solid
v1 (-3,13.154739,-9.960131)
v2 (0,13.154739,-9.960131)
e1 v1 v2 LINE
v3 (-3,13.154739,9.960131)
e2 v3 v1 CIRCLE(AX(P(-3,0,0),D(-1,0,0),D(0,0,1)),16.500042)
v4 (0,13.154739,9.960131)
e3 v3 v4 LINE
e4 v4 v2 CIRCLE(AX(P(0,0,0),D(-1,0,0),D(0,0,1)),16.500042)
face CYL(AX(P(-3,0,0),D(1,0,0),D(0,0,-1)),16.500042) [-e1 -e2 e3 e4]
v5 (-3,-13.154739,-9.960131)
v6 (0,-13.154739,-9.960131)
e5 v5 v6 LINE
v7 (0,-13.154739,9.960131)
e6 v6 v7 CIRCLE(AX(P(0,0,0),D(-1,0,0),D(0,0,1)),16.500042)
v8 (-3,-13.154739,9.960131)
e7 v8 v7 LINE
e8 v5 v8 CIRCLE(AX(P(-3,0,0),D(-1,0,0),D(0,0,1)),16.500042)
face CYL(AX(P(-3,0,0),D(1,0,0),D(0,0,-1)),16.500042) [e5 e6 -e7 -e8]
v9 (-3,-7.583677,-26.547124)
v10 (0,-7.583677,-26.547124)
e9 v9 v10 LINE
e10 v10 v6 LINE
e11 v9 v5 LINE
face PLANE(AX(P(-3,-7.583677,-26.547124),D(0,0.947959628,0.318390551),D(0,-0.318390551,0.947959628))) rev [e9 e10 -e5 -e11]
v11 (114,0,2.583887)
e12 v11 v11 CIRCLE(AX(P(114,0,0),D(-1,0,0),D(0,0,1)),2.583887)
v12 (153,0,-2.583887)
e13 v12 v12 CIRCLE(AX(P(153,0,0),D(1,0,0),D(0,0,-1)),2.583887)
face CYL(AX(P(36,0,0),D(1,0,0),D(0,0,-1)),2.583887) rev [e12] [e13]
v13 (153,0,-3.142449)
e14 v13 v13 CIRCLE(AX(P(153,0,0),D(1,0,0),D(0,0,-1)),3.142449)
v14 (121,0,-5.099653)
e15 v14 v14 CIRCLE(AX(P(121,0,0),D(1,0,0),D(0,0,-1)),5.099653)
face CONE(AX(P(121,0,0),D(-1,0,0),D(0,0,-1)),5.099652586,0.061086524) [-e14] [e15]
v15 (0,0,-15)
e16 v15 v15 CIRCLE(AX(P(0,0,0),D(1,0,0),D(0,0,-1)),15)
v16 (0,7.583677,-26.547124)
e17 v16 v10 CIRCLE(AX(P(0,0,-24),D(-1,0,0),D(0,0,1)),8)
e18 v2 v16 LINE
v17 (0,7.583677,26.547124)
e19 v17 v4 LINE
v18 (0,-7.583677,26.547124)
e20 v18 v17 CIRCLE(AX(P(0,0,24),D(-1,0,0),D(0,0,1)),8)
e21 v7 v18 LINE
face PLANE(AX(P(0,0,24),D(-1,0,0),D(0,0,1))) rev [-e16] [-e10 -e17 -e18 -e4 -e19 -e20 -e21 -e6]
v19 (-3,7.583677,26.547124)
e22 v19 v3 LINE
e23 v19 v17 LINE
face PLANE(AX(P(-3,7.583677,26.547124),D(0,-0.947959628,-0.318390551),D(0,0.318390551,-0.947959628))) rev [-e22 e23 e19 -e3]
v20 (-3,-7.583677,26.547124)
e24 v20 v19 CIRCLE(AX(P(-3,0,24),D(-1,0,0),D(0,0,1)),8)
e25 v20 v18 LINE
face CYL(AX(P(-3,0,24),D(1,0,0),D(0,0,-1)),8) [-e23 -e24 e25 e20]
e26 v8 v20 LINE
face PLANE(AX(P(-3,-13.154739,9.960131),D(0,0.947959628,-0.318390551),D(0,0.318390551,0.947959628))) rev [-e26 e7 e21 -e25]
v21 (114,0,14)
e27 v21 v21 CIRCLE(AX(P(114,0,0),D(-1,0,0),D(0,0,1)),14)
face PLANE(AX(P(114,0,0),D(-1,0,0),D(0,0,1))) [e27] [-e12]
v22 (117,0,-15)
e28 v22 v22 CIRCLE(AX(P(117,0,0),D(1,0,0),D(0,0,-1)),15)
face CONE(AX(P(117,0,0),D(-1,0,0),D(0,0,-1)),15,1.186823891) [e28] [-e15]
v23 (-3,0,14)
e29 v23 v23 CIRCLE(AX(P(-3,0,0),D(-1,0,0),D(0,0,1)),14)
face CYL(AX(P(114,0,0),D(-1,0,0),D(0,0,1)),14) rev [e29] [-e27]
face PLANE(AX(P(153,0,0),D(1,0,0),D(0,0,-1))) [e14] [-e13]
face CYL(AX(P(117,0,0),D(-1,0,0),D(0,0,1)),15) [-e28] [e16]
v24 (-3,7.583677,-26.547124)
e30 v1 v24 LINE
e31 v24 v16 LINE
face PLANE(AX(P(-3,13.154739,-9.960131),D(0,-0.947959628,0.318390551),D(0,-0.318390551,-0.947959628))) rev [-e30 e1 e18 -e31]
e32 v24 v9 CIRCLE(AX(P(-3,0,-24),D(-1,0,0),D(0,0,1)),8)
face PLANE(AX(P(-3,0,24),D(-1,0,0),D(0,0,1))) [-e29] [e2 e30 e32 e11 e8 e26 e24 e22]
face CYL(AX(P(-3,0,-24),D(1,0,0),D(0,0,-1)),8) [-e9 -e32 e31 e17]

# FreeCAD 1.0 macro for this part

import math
import FreeCAD as App
import Part
import Sketcher
from FreeCAD import Vector

doc = App.newDocument("Part")
body = doc.addObject("PartDesign::Body", "Body")

# Sketch on YZ plane
sketch1 = body.newObject("Sketcher::SketchObject", "Sketch")
sketch1.AttachmentSupport = (doc.getObject("YZ_Plane"), [""])
sketch1.MapMode = "FlatFace"
sketch1.addGeometry(Part.Circle(Vector(0, 0, 0), Vector(0, 0, 1), 15), False)
sketch1.addConstraint([
    Sketcher.Constraint("Coincident", 0, 3, -1, 1),
    Sketcher.Constraint("Diameter", 0, 30.0),
])
pad1 = body.newObject("PartDesign::Pad", "Pad")
pad1.Profile = sketch1
pad1.Length = 117

# Sketch on YZ plane
sketch2 = body.newObject("Sketcher::SketchObject", "Sketch001")
sketch2.AttachmentSupport = (doc.getObject("YZ_Plane"), [""])
sketch2.MapMode = "FlatFace"
sketch2.AttachmentOffset = App.Placement(Vector(0, 0, 117), App.Rotation())
sketch2.addGeometry(Part.Circle(Vector(0, 0, 0), Vector(0, 0, 1), 15), False)
sketch2.addConstraint([
    Sketcher.Constraint("Coincident", 0, 3, -1, 1),
    Sketcher.Constraint("Diameter", 0, 30.0),
])
pad2 = body.newObject("PartDesign::Pad", "Pad001")
pad2.Profile = sketch2
pad2.Length = 4
pad2.TaperAngle = -68

# Sketch on YZ plane
sketch3 = body.newObject("Sketcher::SketchObject", "Sketch002")
sketch3.AttachmentSupport = (doc.getObject("YZ_Plane"), [""])
sketch3.MapMode = "FlatFace"
sketch3.AttachmentOffset = App.Placement(Vector(0, 0, 121), App.Rotation())
sketch3.addGeometry(Part.Circle(Vector(0, 0, 0), Vector(0, 0, 1), 5), False)
sketch3.addConstraint([
    Sketcher.Constraint("Coincident", 0, 3, -1, 1),
    Sketcher.Constraint("Diameter", 0, 10.199305),
])
pad3 = body.newObject("PartDesign::Pad", "Pad002")
pad3.Profile = sketch3
pad3.Length = 32
pad3.TaperAngle = -3.5

# Sketch on YZ plane
sketch4 = body.newObject("Sketcher::SketchObject", "Sketch003")
sketch4.AttachmentSupport = (doc.getObject("YZ_Plane"), [""])
sketch4.MapMode = "FlatFace"
sketch4.addGeometry([
    Part.LineSegment(Vector(-13, 10, 0), Vector(-8, 27, 0)),  # 0
    Part.ArcOfCircle(Part.Circle(Vector(0, 24, 0), Vector(0, 0, 1), 8), math.radians(19), math.radians(161)),  # 1
    Part.LineSegment(Vector(8, 27, 0), Vector(13, 10, 0)),  # 2
    Part.ArcOfCircle(Part.Circle(Vector(0, 0, 0), Vector(0, 0, 1), 17), math.radians(-37), math.radians(37)),  # 3
    Part.LineSegment(Vector(13, -10, 0), Vector(8, -27, 0)),  # 4
    Part.ArcOfCircle(Part.Circle(Vector(0, -24, 0), Vector(0, 0, 1), 8), math.radians(-161), math.radians(-19)),  # 5
    Part.LineSegment(Vector(-8, -27, 0), Vector(-13, -10, 0)),  # 6
    Part.ArcOfCircle(Part.Circle(Vector(0, 0, 0), Vector(0, 0, 1), 17), math.radians(143), math.radians(217)),  # 7
], False)
sketch4.addConstraint([
    Sketcher.Constraint("Tangent", 0, 2, 1, 2),
    Sketcher.Constraint("Tangent", 1, 1, 2, 1),
    Sketcher.Constraint("Coincident", 2, 2, 3, 2),
    Sketcher.Constraint("Coincident", 3, 1, 4, 1),
    Sketcher.Constraint("Tangent", 4, 2, 5, 2),
    Sketcher.Constraint("Tangent", 5, 1, 6, 1),
    Sketcher.Constraint("Coincident", 6, 2, 7, 2),
    Sketcher.Constraint("Coincident", 7, 1, 0, 1),
    Sketcher.Constraint("Coincident", 3, 3, -1, 1),
    Sketcher.Constraint("Coincident", 7, 3, -1, 1),
    Sketcher.Constraint("Equal", 1, 5),
    Sketcher.Constraint("Equal", 3, 7),
    Sketcher.Constraint("Symmetric", 1, 3, 5, 3, -1, 1),
    Sketcher.Constraint("Symmetric", 0, 2, 1, 1, -2),
    Sketcher.Constraint("Parallel", 0, 4),
    Sketcher.Constraint("Parallel", 2, 6),
    Sketcher.Constraint("Radius", 1, 8.0),
    Sketcher.Constraint("DistanceY", -1, 1, 1, 3, 24.0),
    Sketcher.Constraint("Radius", 3, 16.500042),
    Sketcher.Constraint("DistanceX", -1, 1, 2, 2, 13.154739),
])
pad4 = body.newObject("PartDesign::Pad", "Pad003")
pad4.Profile = sketch4
pad4.Length = 3
pad4.Reversed = True

# Sketch on YZ plane
sketch5 = body.newObject("Sketcher::SketchObject", "Sketch004")
sketch5.AttachmentSupport = (doc.getObject("YZ_Plane"), [""])
sketch5.MapMode = "FlatFace"
sketch5.AttachmentOffset = App.Placement(Vector(0, 0, -3), App.Rotation())
sketch5.addGeometry(Part.Circle(Vector(0, 0, 0), Vector(0, 0, 1), 14), False)
sketch5.addConstraint([
    Sketcher.Constraint("Coincident", 0, 3, -1, 1),
    Sketcher.Constraint("Diameter", 0, 28.0),
])
pocket1 = body.newObject("PartDesign::Pocket", "Pocket")
pocket1.Profile = sketch5
pocket1.Length = 117
pocket1.Reversed = True

# Sketch on YZ plane
sketch6 = body.newObject("Sketcher::SketchObject", "Sketch005")
sketch6.AttachmentSupport = (doc.getObject("YZ_Plane"), [""])
sketch6.MapMode = "FlatFace"
sketch6.AttachmentOffset = App.Placement(Vector(0, 0, 153), App.Rotation())
sketch6.addGeometry(Part.Circle(Vector(0, 0, 0), Vector(0, 0, 1), 2.6), False)
sketch6.addConstraint([
    Sketcher.Constraint("Coincident", 0, 3, -1, 1),
    Sketcher.Constraint("Diameter", 0, 5.167774),
])
pocket2 = body.newObject("PartDesign::Pocket", "Pocket001")
pocket2.Profile = sketch6
pocket2.Length = 117

doc.recompute()
